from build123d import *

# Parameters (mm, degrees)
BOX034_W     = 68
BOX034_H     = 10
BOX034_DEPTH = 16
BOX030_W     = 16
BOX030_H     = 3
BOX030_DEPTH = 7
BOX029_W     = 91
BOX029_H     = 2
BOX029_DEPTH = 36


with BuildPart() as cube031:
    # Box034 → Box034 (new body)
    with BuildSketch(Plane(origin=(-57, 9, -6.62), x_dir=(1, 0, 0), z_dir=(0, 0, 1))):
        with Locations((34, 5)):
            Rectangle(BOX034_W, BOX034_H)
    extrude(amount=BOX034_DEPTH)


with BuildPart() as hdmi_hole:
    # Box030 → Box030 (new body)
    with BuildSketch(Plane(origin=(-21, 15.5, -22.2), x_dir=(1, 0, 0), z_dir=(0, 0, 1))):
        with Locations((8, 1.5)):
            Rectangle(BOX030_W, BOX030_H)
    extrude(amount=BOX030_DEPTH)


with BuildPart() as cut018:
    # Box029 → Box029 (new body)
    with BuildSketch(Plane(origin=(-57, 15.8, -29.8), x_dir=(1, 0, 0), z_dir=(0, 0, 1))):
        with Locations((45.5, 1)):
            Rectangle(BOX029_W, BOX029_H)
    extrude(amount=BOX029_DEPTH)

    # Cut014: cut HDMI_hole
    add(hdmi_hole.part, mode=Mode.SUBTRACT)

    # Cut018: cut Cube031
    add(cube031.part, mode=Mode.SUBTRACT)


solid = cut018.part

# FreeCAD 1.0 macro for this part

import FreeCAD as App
import Part
import Sketcher

V = App.Vector
Q = App.Units.Quantity

doc = App.newDocument("Part")
body = doc.addObject("PartDesign::Body", "Body")

# Sketch on XY plane
sketch1 = body.newObject("Sketcher::SketchObject", "Sketch")
sketch1.AttachmentSupport = (doc.getObject("XY_Plane"), [""])
sketch1.MapMode = "FlatFace"
sketch1.AttachmentOffset = App.Placement(V(0, 0, -6.62), App.Rotation())
sketch1.addGeometry(Part.LineSegment(V(-57, 19, 0), V(-57, 9, 0)), False)
sketch1.addGeometry(Part.LineSegment(V(-57, 9, 0), V(11, 9, 0)), False)
sketch1.addGeometry(Part.LineSegment(V(11, 9, 0), V(11, 19, 0)), False)
sketch1.addGeometry(Part.LineSegment(V(11, 19, 0), V(-57, 19, 0)), False)
sketch1.addConstraint(Sketcher.Constraint("Coincident", 0, 2, 1, 1))
sketch1.addConstraint(Sketcher.Constraint("Coincident", 1, 2, 2, 1))
sketch1.addConstraint(Sketcher.Constraint("Coincident", 2, 2, 3, 1))
sketch1.addConstraint(Sketcher.Constraint("Coincident", 3, 2, 0, 1))
sketch1.addConstraint(Sketcher.Constraint("Vertical", 0))
sketch1.addConstraint(Sketcher.Constraint("Horizontal", 1))
sketch1.addConstraint(Sketcher.Constraint("Vertical", 2))
sketch1.addConstraint(Sketcher.Constraint("Horizontal", 3))
sketch1.addConstraint(Sketcher.Constraint("DistanceX", 1, 1, 1, 2, Q("68 mm")))
sketch1.addConstraint(Sketcher.Constraint("DistanceY", 0, 2, 0, 1, Q("10 mm")))
sketch1.addConstraint(Sketcher.Constraint("DistanceX", 0, 2, -1, 1, Q("57 mm")))
sketch1.addConstraint(Sketcher.Constraint("DistanceY", -1, 1, 0, 2, Q("9 mm")))
pad1 = body.newObject("PartDesign::Pad", "Pad")
pad1.Profile = sketch1
pad1.Length = 16
body2 = doc.addObject("PartDesign::Body", "Body001")

# Sketch on XY plane
sketch2 = body2.newObject("Sketcher::SketchObject", "Sketch001")
sketch2.AttachmentSupport = (doc.getObject("XY_Plane001"), [""])
sketch2.MapMode = "FlatFace"
sketch2.AttachmentOffset = App.Placement(V(0, 0, -22.2), App.Rotation())
sketch2.addGeometry(Part.LineSegment(V(-21, 18.5, 0), V(-21, 15.5, 0)), False)
sketch2.addGeometry(Part.LineSegment(V(-21, 15.5, 0), V(-5, 15.5, 0)), False)
sketch2.addGeometry(Part.LineSegment(V(-5, 15.5, 0), V(-5, 18.5, 0)), False)
sketch2.addGeometry(Part.LineSegment(V(-5, 18.5, 0), V(-21, 18.5, 0)), False)
sketch2.addConstraint(Sketcher.Constraint("Coincident", 0, 2, 1, 1))
sketch2.addConstraint(Sketcher.Constraint("Coincident", 1, 2, 2, 1))
sketch2.addConstraint(Sketcher.Constraint("Coincident", 2, 2, 3, 1))
sketch2.addConstraint(Sketcher.Constraint("Coincident", 3, 2, 0, 1))
sketch2.addConstraint(Sketcher.Constraint("Vertical", 0))
sketch2.addConstraint(Sketcher.Constraint("Horizontal", 1))
sketch2.addConstraint(Sketcher.Constraint("Vertical", 2))
sketch2.addConstraint(Sketcher.Constraint("Horizontal", 3))
sketch2.addConstraint(Sketcher.Constraint("DistanceX", 1, 1, 1, 2, Q("16 mm")))
sketch2.addConstraint(Sketcher.Constraint("DistanceY", 0, 2, 0, 1, Q("3 mm")))
sketch2.addConstraint(Sketcher.Constraint("DistanceX", 0, 2, -1, 1, Q("21 mm")))
sketch2.addConstraint(Sketcher.Constraint("DistanceY", -1, 1, 0, 2, Q("15.5 mm")))
pad2 = body2.newObject("PartDesign::Pad", "Pad001")
pad2.Profile = sketch2
pad2.Length = 7
body3 = doc.addObject("PartDesign::Body", "Body002")

# Sketch on XY plane
sketch3 = body3.newObject("Sketcher::SketchObject", "Sketch002")
sketch3.AttachmentSupport = (doc.getObject("XY_Plane002"), [""])
sketch3.MapMode = "FlatFace"
sketch3.AttachmentOffset = App.Placement(V(0, 0, -29.8), App.Rotation())
sketch3.addGeometry(Part.LineSegment(V(-57, 17.8, 0), V(-57, 15.8, 0)), False)
sketch3.addGeometry(Part.LineSegment(V(-57, 15.8, 0), V(34, 15.8, 0)), False)
sketch3.addGeometry(Part.LineSegment(V(34, 15.8, 0), V(34, 17.8, 0)), False)
sketch3.addGeometry(Part.LineSegment(V(34, 17.8, 0), V(-57, 17.8, 0)), False)
sketch3.addConstraint(Sketcher.Constraint("Coincident", 0, 2, 1, 1))
sketch3.addConstraint(Sketcher.Constraint("Coincident", 1, 2, 2, 1))
sketch3.addConstraint(Sketcher.Constraint("Coincident", 2, 2, 3, 1))
sketch3.addConstraint(Sketcher.Constraint("Coincident", 3, 2, 0, 1))
sketch3.addConstraint(Sketcher.Constraint("Vertical", 0))
sketch3.addConstraint(Sketcher.Constraint("Horizontal", 1))
sketch3.addConstraint(Sketcher.Constraint("Vertical", 2))
sketch3.addConstraint(Sketcher.Constraint("Horizontal", 3))
sketch3.addConstraint(Sketcher.Constraint("DistanceX", 1, 1, 1, 2, Q("91 mm")))
sketch3.addConstraint(Sketcher.Constraint("DistanceY", 0, 2, 0, 1, Q("2 mm")))
sketch3.addConstraint(Sketcher.Constraint("DistanceX", 0, 2, -1, 1, Q("57 mm")))
sketch3.addConstraint(Sketcher.Constraint("DistanceY", -1, 1, 0, 2, Q("15.8 mm")))
pad3 = body3.newObject("PartDesign::Pad", "Pad002")
pad3.Profile = sketch3
pad3.Length = 36
doc.recompute()

boolean = body3.newObject("PartDesign::Boolean", "Boolean")
boolean.Type = "Cut"
boolean.addObjects([body2])
doc.recompute()

boolean2 = body3.newObject("PartDesign::Boolean", "Boolean001")
boolean2.Type = "Cut"
boolean2.addObjects([body])

doc.recompute()
